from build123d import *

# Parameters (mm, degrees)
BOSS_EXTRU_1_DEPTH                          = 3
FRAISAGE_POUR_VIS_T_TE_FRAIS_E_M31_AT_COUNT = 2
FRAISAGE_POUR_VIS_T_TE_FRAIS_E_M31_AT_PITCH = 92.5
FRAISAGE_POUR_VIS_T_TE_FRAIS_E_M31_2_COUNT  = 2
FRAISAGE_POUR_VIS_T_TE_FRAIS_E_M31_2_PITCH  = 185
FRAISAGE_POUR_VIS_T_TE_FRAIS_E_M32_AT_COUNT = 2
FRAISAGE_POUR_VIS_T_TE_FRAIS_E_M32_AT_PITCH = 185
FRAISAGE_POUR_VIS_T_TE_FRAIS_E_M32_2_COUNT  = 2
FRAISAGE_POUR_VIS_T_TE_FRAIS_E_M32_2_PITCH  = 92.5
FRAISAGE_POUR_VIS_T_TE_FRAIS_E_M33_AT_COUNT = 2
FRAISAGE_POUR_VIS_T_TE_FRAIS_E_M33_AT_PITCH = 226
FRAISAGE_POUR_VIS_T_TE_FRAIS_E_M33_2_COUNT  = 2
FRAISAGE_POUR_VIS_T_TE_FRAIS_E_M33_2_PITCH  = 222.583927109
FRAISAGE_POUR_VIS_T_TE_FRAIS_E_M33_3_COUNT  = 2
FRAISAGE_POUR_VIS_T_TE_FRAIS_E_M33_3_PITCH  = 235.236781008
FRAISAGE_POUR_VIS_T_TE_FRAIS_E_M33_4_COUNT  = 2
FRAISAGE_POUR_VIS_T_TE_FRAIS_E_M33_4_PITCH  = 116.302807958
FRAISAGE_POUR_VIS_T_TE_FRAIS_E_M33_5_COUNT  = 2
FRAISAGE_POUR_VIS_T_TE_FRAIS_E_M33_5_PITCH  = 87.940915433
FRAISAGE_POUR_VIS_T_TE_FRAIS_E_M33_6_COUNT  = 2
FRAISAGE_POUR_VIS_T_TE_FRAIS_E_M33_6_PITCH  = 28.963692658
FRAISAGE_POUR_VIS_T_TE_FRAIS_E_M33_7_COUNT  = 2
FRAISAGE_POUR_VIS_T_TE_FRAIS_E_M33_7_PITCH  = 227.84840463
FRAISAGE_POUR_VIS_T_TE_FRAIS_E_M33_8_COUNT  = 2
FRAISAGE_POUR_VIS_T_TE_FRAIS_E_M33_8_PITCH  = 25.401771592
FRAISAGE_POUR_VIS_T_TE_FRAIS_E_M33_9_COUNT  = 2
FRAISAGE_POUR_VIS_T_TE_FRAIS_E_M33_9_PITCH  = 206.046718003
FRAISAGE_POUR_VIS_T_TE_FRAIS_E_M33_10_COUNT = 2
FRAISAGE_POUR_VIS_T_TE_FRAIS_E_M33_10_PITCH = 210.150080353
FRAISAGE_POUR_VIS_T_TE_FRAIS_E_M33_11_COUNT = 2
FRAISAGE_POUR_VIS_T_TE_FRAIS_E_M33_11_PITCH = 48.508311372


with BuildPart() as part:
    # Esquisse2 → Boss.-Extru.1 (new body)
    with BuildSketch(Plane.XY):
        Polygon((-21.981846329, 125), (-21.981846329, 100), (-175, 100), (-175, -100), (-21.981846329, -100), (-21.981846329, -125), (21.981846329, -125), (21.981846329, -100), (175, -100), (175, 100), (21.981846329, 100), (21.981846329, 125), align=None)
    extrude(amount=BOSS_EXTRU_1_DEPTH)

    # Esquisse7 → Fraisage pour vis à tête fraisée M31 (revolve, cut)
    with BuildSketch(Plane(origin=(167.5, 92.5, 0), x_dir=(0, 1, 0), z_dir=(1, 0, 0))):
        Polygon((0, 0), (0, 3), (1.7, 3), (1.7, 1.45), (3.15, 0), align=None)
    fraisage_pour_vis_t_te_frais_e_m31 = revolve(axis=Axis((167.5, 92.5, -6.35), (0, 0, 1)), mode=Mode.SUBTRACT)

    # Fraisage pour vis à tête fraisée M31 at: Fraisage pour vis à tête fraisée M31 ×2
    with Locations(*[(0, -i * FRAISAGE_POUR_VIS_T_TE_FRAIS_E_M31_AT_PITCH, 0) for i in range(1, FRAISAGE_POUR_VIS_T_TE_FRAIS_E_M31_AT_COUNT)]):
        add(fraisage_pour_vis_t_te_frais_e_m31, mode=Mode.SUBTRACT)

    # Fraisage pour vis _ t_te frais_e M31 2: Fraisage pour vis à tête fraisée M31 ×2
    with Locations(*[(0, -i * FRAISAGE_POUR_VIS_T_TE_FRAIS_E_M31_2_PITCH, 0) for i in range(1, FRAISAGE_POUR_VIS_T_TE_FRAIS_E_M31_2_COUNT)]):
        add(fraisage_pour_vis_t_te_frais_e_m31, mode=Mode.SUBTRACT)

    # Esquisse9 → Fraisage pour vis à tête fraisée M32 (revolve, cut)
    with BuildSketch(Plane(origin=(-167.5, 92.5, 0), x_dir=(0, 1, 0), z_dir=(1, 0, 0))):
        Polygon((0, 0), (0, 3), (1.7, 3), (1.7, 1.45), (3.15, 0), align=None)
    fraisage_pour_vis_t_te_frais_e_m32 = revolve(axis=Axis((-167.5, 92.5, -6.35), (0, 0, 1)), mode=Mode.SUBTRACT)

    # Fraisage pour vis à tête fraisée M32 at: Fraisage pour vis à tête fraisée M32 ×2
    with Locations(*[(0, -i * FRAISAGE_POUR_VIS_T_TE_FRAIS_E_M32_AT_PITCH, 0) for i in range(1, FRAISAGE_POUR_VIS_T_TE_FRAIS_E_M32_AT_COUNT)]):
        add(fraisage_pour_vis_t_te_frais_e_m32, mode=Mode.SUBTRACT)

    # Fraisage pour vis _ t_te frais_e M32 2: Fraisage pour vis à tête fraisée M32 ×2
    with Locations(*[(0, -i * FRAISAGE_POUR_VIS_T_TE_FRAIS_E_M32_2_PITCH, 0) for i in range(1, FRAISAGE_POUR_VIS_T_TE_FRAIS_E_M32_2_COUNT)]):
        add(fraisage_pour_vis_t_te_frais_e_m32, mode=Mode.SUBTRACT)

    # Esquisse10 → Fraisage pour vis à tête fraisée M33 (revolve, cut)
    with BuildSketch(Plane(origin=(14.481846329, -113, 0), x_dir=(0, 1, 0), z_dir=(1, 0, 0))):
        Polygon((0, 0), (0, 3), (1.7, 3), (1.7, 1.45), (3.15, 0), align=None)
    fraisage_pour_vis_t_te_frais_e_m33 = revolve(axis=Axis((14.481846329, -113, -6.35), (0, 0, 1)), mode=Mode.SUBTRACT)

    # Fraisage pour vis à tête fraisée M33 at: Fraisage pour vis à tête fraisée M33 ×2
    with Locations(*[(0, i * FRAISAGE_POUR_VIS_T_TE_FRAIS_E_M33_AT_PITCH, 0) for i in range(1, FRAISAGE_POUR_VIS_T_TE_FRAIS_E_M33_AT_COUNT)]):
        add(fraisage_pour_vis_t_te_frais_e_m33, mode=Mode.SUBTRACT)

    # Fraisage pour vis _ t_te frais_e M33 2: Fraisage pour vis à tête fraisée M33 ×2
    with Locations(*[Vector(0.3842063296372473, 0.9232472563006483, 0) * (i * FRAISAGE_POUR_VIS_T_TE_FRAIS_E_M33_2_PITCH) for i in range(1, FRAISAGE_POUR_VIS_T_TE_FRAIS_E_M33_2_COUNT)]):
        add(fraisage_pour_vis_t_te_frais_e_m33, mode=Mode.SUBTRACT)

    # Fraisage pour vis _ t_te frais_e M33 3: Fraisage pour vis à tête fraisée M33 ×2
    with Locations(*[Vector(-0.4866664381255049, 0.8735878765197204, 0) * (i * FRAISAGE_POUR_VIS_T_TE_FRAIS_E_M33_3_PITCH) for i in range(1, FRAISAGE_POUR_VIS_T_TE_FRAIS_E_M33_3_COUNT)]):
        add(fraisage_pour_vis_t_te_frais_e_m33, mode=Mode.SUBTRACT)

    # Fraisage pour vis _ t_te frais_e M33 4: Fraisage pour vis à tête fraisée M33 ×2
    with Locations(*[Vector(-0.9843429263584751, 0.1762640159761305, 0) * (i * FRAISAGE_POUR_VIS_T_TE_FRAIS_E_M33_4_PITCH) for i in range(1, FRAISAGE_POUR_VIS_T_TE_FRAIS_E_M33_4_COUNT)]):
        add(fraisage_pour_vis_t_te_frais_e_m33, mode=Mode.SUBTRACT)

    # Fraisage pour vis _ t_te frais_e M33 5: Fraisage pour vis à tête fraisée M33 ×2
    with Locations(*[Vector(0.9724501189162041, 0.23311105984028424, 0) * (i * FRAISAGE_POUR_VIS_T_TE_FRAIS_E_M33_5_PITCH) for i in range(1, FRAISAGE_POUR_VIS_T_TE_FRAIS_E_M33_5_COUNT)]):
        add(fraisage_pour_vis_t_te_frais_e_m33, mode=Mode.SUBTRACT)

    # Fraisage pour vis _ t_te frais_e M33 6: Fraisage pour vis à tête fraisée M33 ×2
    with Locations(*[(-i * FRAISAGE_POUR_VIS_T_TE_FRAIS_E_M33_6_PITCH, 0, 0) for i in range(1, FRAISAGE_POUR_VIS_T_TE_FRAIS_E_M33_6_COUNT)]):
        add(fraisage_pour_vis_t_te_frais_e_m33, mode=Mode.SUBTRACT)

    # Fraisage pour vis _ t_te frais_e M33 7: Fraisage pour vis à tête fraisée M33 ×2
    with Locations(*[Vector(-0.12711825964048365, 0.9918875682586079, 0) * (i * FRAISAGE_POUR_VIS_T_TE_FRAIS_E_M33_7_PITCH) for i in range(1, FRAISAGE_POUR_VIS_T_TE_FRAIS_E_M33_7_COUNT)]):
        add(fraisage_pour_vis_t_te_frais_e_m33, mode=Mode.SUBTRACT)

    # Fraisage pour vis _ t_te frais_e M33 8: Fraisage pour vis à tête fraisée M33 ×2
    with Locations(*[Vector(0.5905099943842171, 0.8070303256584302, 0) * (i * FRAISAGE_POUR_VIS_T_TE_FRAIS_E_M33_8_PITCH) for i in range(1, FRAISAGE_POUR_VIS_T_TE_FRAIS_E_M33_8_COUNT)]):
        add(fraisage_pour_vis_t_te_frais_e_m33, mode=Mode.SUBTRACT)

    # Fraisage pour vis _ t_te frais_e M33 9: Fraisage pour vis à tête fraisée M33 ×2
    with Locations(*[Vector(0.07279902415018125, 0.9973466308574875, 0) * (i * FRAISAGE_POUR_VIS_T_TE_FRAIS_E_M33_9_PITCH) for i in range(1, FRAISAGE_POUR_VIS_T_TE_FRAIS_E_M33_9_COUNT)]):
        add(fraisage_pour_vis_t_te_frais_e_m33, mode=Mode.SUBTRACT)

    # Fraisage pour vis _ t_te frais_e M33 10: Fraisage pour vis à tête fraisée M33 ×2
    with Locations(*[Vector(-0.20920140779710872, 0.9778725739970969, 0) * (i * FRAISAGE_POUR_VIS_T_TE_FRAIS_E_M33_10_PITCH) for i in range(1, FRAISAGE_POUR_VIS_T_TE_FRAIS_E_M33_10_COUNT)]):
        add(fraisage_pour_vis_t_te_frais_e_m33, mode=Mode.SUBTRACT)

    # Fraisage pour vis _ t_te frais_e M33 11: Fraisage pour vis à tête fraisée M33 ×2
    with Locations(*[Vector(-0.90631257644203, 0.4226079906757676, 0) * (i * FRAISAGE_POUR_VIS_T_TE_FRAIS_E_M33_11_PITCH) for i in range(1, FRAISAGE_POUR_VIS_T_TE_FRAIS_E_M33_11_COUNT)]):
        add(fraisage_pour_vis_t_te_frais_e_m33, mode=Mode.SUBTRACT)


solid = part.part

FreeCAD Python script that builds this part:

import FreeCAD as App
import Part
import Sketcher

V = App.Vector
Q = App.Units.Quantity


def add_polygon(sketch, points):
    """Adds a closed chain of lines whose ends are joined by coincident constraints."""
    first, n = sketch.GeometryCount, len(points)
    for a, b in zip(points, points[1:] + points[:1]):
        sketch.addGeometry(Part.LineSegment(App.Vector(*a, 0), App.Vector(*b, 0)), False)
    for i in range(n):
        sketch.addConstraint(Sketcher.Constraint("Coincident", first + i, 2, first + (i + 1) % n, 1))

doc = App.newDocument("Part")
body = doc.addObject("PartDesign::Body", "Body")

# Sketch on XY plane
sketch1 = doc.addObject("Sketcher::SketchObject", "Sketch")
body.addObject(sketch1)
sketch1.AttachmentSupport = (doc.XY_Plane, [""])
sketch1.MapMode = "FlatFace"
add_polygon(sketch1, [(-22, 125), (-22, 100), (-175, 100), (-175, -100), (-22, -100), (-22, -125), (22, -125), (22, -100), (175, -100), (175, 100), (22, 100), (22, 125)])  # lines 0-11
sketch1.addConstraint([
    Sketcher.Constraint("Vertical", 0),
    Sketcher.Constraint("Horizontal", 1),
    Sketcher.Constraint("Vertical", 2),
    Sketcher.Constraint("Horizontal", 3),
    Sketcher.Constraint("Vertical", 4),
    Sketcher.Constraint("Horizontal", 5),
    Sketcher.Constraint("Vertical", 6),
    Sketcher.Constraint("Horizontal", 7),
    Sketcher.Constraint("Vertical", 8),
    Sketcher.Constraint("Horizontal", 9),
    Sketcher.Constraint("Vertical", 10),
    Sketcher.Constraint("Horizontal", 11),
    Sketcher.Constraint("Symmetric", 0, 2, 6, 2, -1, 1),
    Sketcher.Constraint("Symmetric", 2, 2, 8, 2, -1, 1),
    Sketcher.Constraint("Symmetric", 4, 2, 10, 2, -1, 1),
    Sketcher.Constraint("Symmetric", 3, 2, 6, 2, -2),
    Sketcher.Constraint("DistanceY", 0, 2, 0, 1, 25.0),
    Sketcher.Constraint("DistanceY", 2, 2, 2, 1, 200.0),
    Sketcher.Constraint("DistanceX", 1, 2, -1, 1, 175.0),
    Sketcher.Constraint("DistanceX", 1, 2, 1, 1, 153.018154),
])
pad1 = doc.addObject("PartDesign::Pad", "Pad")
body.addObject(pad1)
pad1.Profile = sketch1
pad1.Length = 3

# Sketch on YZ plane
sketch2 = doc.addObject("Sketcher::SketchObject", "Sketch001")
body.addObject(sketch2)
sketch2.AttachmentSupport = (doc.YZ_Plane, [""])
sketch2.MapMode = "FlatFace"
sketch2.AttachmentOffset = App.Placement(V(0, 0, 167.5), App.Rotation())
add_polygon(sketch2, [(92.5, 3), (92.5, 0), (95.7, 0), (94.2, 1.4), (94.2, 3)])  # lines 0-4
sketch2.addGeometry(Part.LineSegment(V(92.5, 0, 0), V(92.5, 3, 0)), True)  # axis
sketch2.addConstraint([
    Sketcher.Constraint("Vertical", 0),
    Sketcher.Constraint("Horizontal", 1),
    Sketcher.Constraint("Vertical", 3),
    Sketcher.Constraint("Horizontal", 4),
    Sketcher.Constraint("Vertical", 5),
    Sketcher.Constraint("Coincident", 5, 1, 0, 2),
    Sketcher.Constraint("PointOnObject", 0, 2, -1),
    Sketcher.Constraint("Horizontal", 3, 2, 5, 2),
    Sketcher.Constraint("DistanceY", 0, 2, 0, 1, 3.0),
    Sketcher.Constraint("Angle", 2, Q("135 deg")),
    Sketcher.Constraint("DistanceX", 4, 2, 4, 1, 1.7),
    Sketcher.Constraint("DistanceX", 1, 1, 1, 2, 3.15),
    Sketcher.Constraint("DistanceX", -1, 1, 0, 2, 92.5),
])
groove = doc.addObject("PartDesign::Groove", "Groove")
body.addObject(groove)
groove.Profile = sketch2
groove.ReferenceAxis = (sketch2, ["Axis0"])
groove.Angle = 360
doc.recompute()

linearpattern = doc.addObject("PartDesign::LinearPattern", "LinearPattern")
body.addObject(linearpattern)
linearpattern.Originals = [groove]
linearpattern.Direction = (doc.Y_Axis, [""])
linearpattern.Mode = "offset"
linearpattern.Offset = 92.5
linearpattern.Occurrences = 2
linearpattern.Reversed = True
body.Tip = linearpattern
doc.recompute()

linearpattern2 = doc.addObject("PartDesign::LinearPattern", "LinearPattern001")
body.addObject(linearpattern2)
linearpattern2.Originals = [groove]
linearpattern2.Direction = (doc.Y_Axis, [""])
linearpattern2.Mode = "offset"
linearpattern2.Offset = 185
linearpattern2.Occurrences = 2
linearpattern2.Reversed = True
body.Tip = linearpattern2

# Sketch on YZ plane
sketch3 = doc.addObject("Sketcher::SketchObject", "Sketch002")
body.addObject(sketch3)
sketch3.AttachmentSupport = (doc.YZ_Plane, [""])
sketch3.MapMode = "FlatFace"
sketch3.AttachmentOffset = App.Placement(V(0, 0, -167.5), App.Rotation())
add_polygon(sketch3, [(92.5, 3), (92.5, 0), (95.7, 0), (94.2, 1.4), (94.2, 3)])  # lines 0-4
sketch3.addGeometry(Part.LineSegment(V(92.5, 0, 0), V(92.5, 3, 0)), True)  # axis
sketch3.addConstraint([
    Sketcher.Constraint("Vertical", 0),
    Sketcher.Constraint("Horizontal", 1),
    Sketcher.Constraint("Vertical", 3),
    Sketcher.Constraint("Horizontal", 4),
    Sketcher.Constraint("Vertical", 5),
    Sketcher.Constraint("Coincident", 5, 1, 0, 2),
    Sketcher.Constraint("PointOnObject", 0, 2, -1),
    Sketcher.Constraint("Horizontal", 3, 2, 5, 2),
    Sketcher.Constraint("DistanceY", 0, 2, 0, 1, 3.0),
    Sketcher.Constraint("Angle", 2, Q("135 deg")),
    Sketcher.Constraint("DistanceX", 4, 2, 4, 1, 1.7),
    Sketcher.Constraint("DistanceX", 1, 1, 1, 2, 3.15),
    Sketcher.Constraint("DistanceX", -1, 1, 0, 2, 92.5),
])
groove2 = doc.addObject("PartDesign::Groove", "Groove001")
body.addObject(groove2)
groove2.Profile = sketch3
groove2.ReferenceAxis = (sketch3, ["Axis0"])
groove2.Angle = 360
doc.recompute()

linearpattern3 = doc.addObject("PartDesign::LinearPattern", "LinearPattern002")
body.addObject(linearpattern3)
linearpattern3.Originals = [groove2]
linearpattern3.Direction = (doc.Y_Axis, [""])
linearpattern3.Mode = "offset"
linearpattern3.Offset = 185
linearpattern3.Occurrences = 2
linearpattern3.Reversed = True
body.Tip = linearpattern3
doc.recompute()

linearpattern4 = doc.addObject("PartDesign::LinearPattern", "LinearPattern003")
body.addObject(linearpattern4)
linearpattern4.Originals = [groove2]
linearpattern4.Direction = (doc.Y_Axis, [""])
linearpattern4.Mode = "offset"
linearpattern4.Offset = 92.5
linearpattern4.Occurrences = 2
linearpattern4.Reversed = True
body.Tip = linearpattern4

# Sketch on YZ plane
sketch4 = doc.addObject("Sketcher::SketchObject", "Sketch003")
body.addObject(sketch4)
sketch4.AttachmentSupport = (doc.YZ_Plane, [""])
sketch4.MapMode = "FlatFace"
sketch4.AttachmentOffset = App.Placement(V(0, 0, 14.481846), App.Rotation())
add_polygon(sketch4, [(-113, 3), (-113, 0), (-109.8, 0), (-111.3, 1.4), (-111.3, 3)])  # lines 0-4
sketch4.addGeometry(Part.LineSegment(V(-113, 0, 0), V(-113, 3, 0)), True)  # axis
sketch4.addConstraint([
    Sketcher.Constraint("Vertical", 0),
    Sketcher.Constraint("Horizontal", 1),
    Sketcher.Constraint("Vertical", 3),
    Sketcher.Constraint("Horizontal", 4),
    Sketcher.Constraint("Vertical", 5),
    Sketcher.Constraint("Coincident", 5, 1, 0, 2),
    Sketcher.Constraint("PointOnObject", 0, 2, -1),
    Sketcher.Constraint("Horizontal", 3, 2, 5, 2),
    Sketcher.Constraint("DistanceY", 0, 2, 0, 1, 3.0),
    Sketcher.Constraint("Angle", 2, Q("135 deg")),
    Sketcher.Constraint("DistanceX", 4, 2, 4, 1, 1.7),
    Sketcher.Constraint("DistanceX", 0, 2, -1, 1, 113.0),
    Sketcher.Constraint("DistanceX", 1, 1, 1, 2, 3.15),
])
groove3 = doc.addObject("PartDesign::Groove", "Groove002")
body.addObject(groove3)
groove3.Profile = sketch4
groove3.ReferenceAxis = (sketch4, ["Axis0"])
groove3.Angle = 360
doc.recompute()

linearpattern5 = doc.addObject("PartDesign::LinearPattern", "LinearPattern004")
body.addObject(linearpattern5)
linearpattern5.Originals = [groove3]
linearpattern5.Direction = (doc.Y_Axis, [""])
linearpattern5.Mode = "offset"
linearpattern5.Offset = 226
linearpattern5.Occurrences = 2
body.Tip = linearpattern5
doc.recompute()

datumline = doc.addObject("PartDesign::Line", "DatumLine")
body.addObject(datumline)
datumline.Placement = App.Placement(V(0, 0, 0), App.Rotation(V(0, 0, 1), V(0.38420633, 0.923247256, 0)))
linearpattern6 = doc.addObject("PartDesign::LinearPattern", "LinearPattern005")
body.addObject(linearpattern6)
linearpattern6.Originals = [groove3]
linearpattern6.Direction = (datumline, [""])
linearpattern6.Mode = "offset"
linearpattern6.Offset = 222.583927
linearpattern6.Occurrences = 2
body.Tip = linearpattern6
doc.recompute()

datumline2 = doc.addObject("PartDesign::Line", "DatumLine001")
body.addObject(datumline2)
datumline2.Placement = App.Placement(V(0, 0, 0), App.Rotation(V(0, 0, 1), V(-0.486666438, 0.873587877, 0)))
linearpattern7 = doc.addObject("PartDesign::LinearPattern", "LinearPattern006")
body.addObject(linearpattern7)
linearpattern7.Originals = [groove3]
linearpattern7.Direction = (datumline2, [""])
linearpattern7.Mode = "offset"
linearpattern7.Offset = 235.236781
linearpattern7.Occurrences = 2
body.Tip = linearpattern7
doc.recompute()

datumline3 = doc.addObject("PartDesign::Line", "DatumLine002")
body.addObject(datumline3)
datumline3.Placement = App.Placement(V(0, 0, 0), App.Rotation(V(0, 0, 1), V(-0.984342926, 0.176264016, 0)))
linearpattern8 = doc.addObject("PartDesign::LinearPattern", "LinearPattern007")
body.addObject(linearpattern8)
linearpattern8.Originals = [groove3]
linearpattern8.Direction = (datumline3, [""])
linearpattern8.Mode = "offset"
linearpattern8.Offset = 116.302808
linearpattern8.Occurrences = 2
body.Tip = linearpattern8
doc.recompute()

datumline4 = doc.addObject("PartDesign::Line", "DatumLine003")
body.addObject(datumline4)
datumline4.Placement = App.Placement(V(0, 0, 0), App.Rotation(V(0, 0, 1), V(0.972450119, 0.23311106, 0)))
linearpattern9 = doc.addObject("PartDesign::LinearPattern", "LinearPattern008")
body.addObject(linearpattern9)
linearpattern9.Originals = [groove3]
linearpattern9.Direction = (datumline4, [""])
linearpattern9.Mode = "offset"
linearpattern9.Offset = 87.940915
linearpattern9.Occurrences = 2
body.Tip = linearpattern9
doc.recompute()

linearpattern10 = doc.addObject("PartDesign::LinearPattern", "LinearPattern009")
body.addObject(linearpattern10)
linearpattern10.Originals = [groove3]
linearpattern10.Direction = (doc.X_Axis, [""])
linearpattern10.Mode = "offset"
linearpattern10.Offset = 28.963693
linearpattern10.Occurrences = 2
linearpattern10.Reversed = True
body.Tip = linearpattern10
doc.recompute()

datumline5 = doc.addObject("PartDesign::Line", "DatumLine004")
body.addObject(datumline5)
datumline5.Placement = App.Placement(V(0, 0, 0), App.Rotation(V(0, 0, 1), V(-0.12711826, 0.991887568, 0)))
linearpattern11 = doc.addObject("PartDesign::LinearPattern", "LinearPattern010")
body.addObject(linearpattern11)
linearpattern11.Originals = [groove3]
linearpattern11.Direction = (datumline5, [""])
linearpattern11.Mode = "offset"
linearpattern11.Offset = 227.848405
linearpattern11.Occurrences = 2
body.Tip = linearpattern11
doc.recompute()

datumline6 = doc.addObject("PartDesign::Line", "DatumLine005")
body.addObject(datumline6)
datumline6.Placement = App.Placement(V(0, 0, 0), App.Rotation(V(0, 0, 1), V(0.590509994, 0.807030326, 0)))
linearpattern12 = doc.addObject("PartDesign::LinearPattern", "LinearPattern011")
body.addObject(linearpattern12)
linearpattern12.Originals = [groove3]
linearpattern12.Direction = (datumline6, [""])
linearpattern12.Mode = "offset"
linearpattern12.Offset = 25.401772
linearpattern12.Occurrences = 2
body.Tip = linearpattern12
doc.recompute()

datumline7 = doc.addObject("PartDesign::Line", "DatumLine006")
body.addObject(datumline7)
datumline7.Placement = App.Placement(V(0, 0, 0), App.Rotation(V(0, 0, 1), V(0.072799024, 0.997346631, 0)))
linearpattern13 = doc.addObject("PartDesign::LinearPattern", "LinearPattern012")
body.addObject(linearpattern13)
linearpattern13.Originals = [groove3]
linearpattern13.Direction = (datumline7, [""])
linearpattern13.Mode = "offset"
linearpattern13.Offset = 206.046718
linearpattern13.Occurrences = 2
body.Tip = linearpattern13
doc.recompute()

datumline8 = doc.addObject("PartDesign::Line", "DatumLine007")
body.addObject(datumline8)
datumline8.Placement = App.Placement(V(0, 0, 0), App.Rotation(V(0, 0, 1), V(-0.209201408, 0.977872574, 0)))
linearpattern14 = doc.addObject("PartDesign::LinearPattern", "LinearPattern013")
body.addObject(linearpattern14)
linearpattern14.Originals = [groove3]
linearpattern14.Direction = (datumline8, [""])
linearpattern14.Mode = "offset"
linearpattern14.Offset = 210.15008
linearpattern14.Occurrences = 2
body.Tip = linearpattern14
doc.recompute()

datumline9 = doc.addObject("PartDesign::Line", "DatumLine008")
body.addObject(datumline9)
datumline9.Placement = App.Placement(V(0, 0, 0), App.Rotation(V(0, 0, 1), V(-0.906312576, 0.422607991, 0)))
linearpattern15 = doc.addObject("PartDesign::LinearPattern", "LinearPattern014")
body.addObject(linearpattern15)
linearpattern15.Originals = [groove3]
linearpattern15.Direction = (datumline9, [""])
linearpattern15.Mode = "offset"
linearpattern15.Offset = 48.508311
linearpattern15.Occurrences = 2
body.Tip = linearpattern15

doc.recompute()
